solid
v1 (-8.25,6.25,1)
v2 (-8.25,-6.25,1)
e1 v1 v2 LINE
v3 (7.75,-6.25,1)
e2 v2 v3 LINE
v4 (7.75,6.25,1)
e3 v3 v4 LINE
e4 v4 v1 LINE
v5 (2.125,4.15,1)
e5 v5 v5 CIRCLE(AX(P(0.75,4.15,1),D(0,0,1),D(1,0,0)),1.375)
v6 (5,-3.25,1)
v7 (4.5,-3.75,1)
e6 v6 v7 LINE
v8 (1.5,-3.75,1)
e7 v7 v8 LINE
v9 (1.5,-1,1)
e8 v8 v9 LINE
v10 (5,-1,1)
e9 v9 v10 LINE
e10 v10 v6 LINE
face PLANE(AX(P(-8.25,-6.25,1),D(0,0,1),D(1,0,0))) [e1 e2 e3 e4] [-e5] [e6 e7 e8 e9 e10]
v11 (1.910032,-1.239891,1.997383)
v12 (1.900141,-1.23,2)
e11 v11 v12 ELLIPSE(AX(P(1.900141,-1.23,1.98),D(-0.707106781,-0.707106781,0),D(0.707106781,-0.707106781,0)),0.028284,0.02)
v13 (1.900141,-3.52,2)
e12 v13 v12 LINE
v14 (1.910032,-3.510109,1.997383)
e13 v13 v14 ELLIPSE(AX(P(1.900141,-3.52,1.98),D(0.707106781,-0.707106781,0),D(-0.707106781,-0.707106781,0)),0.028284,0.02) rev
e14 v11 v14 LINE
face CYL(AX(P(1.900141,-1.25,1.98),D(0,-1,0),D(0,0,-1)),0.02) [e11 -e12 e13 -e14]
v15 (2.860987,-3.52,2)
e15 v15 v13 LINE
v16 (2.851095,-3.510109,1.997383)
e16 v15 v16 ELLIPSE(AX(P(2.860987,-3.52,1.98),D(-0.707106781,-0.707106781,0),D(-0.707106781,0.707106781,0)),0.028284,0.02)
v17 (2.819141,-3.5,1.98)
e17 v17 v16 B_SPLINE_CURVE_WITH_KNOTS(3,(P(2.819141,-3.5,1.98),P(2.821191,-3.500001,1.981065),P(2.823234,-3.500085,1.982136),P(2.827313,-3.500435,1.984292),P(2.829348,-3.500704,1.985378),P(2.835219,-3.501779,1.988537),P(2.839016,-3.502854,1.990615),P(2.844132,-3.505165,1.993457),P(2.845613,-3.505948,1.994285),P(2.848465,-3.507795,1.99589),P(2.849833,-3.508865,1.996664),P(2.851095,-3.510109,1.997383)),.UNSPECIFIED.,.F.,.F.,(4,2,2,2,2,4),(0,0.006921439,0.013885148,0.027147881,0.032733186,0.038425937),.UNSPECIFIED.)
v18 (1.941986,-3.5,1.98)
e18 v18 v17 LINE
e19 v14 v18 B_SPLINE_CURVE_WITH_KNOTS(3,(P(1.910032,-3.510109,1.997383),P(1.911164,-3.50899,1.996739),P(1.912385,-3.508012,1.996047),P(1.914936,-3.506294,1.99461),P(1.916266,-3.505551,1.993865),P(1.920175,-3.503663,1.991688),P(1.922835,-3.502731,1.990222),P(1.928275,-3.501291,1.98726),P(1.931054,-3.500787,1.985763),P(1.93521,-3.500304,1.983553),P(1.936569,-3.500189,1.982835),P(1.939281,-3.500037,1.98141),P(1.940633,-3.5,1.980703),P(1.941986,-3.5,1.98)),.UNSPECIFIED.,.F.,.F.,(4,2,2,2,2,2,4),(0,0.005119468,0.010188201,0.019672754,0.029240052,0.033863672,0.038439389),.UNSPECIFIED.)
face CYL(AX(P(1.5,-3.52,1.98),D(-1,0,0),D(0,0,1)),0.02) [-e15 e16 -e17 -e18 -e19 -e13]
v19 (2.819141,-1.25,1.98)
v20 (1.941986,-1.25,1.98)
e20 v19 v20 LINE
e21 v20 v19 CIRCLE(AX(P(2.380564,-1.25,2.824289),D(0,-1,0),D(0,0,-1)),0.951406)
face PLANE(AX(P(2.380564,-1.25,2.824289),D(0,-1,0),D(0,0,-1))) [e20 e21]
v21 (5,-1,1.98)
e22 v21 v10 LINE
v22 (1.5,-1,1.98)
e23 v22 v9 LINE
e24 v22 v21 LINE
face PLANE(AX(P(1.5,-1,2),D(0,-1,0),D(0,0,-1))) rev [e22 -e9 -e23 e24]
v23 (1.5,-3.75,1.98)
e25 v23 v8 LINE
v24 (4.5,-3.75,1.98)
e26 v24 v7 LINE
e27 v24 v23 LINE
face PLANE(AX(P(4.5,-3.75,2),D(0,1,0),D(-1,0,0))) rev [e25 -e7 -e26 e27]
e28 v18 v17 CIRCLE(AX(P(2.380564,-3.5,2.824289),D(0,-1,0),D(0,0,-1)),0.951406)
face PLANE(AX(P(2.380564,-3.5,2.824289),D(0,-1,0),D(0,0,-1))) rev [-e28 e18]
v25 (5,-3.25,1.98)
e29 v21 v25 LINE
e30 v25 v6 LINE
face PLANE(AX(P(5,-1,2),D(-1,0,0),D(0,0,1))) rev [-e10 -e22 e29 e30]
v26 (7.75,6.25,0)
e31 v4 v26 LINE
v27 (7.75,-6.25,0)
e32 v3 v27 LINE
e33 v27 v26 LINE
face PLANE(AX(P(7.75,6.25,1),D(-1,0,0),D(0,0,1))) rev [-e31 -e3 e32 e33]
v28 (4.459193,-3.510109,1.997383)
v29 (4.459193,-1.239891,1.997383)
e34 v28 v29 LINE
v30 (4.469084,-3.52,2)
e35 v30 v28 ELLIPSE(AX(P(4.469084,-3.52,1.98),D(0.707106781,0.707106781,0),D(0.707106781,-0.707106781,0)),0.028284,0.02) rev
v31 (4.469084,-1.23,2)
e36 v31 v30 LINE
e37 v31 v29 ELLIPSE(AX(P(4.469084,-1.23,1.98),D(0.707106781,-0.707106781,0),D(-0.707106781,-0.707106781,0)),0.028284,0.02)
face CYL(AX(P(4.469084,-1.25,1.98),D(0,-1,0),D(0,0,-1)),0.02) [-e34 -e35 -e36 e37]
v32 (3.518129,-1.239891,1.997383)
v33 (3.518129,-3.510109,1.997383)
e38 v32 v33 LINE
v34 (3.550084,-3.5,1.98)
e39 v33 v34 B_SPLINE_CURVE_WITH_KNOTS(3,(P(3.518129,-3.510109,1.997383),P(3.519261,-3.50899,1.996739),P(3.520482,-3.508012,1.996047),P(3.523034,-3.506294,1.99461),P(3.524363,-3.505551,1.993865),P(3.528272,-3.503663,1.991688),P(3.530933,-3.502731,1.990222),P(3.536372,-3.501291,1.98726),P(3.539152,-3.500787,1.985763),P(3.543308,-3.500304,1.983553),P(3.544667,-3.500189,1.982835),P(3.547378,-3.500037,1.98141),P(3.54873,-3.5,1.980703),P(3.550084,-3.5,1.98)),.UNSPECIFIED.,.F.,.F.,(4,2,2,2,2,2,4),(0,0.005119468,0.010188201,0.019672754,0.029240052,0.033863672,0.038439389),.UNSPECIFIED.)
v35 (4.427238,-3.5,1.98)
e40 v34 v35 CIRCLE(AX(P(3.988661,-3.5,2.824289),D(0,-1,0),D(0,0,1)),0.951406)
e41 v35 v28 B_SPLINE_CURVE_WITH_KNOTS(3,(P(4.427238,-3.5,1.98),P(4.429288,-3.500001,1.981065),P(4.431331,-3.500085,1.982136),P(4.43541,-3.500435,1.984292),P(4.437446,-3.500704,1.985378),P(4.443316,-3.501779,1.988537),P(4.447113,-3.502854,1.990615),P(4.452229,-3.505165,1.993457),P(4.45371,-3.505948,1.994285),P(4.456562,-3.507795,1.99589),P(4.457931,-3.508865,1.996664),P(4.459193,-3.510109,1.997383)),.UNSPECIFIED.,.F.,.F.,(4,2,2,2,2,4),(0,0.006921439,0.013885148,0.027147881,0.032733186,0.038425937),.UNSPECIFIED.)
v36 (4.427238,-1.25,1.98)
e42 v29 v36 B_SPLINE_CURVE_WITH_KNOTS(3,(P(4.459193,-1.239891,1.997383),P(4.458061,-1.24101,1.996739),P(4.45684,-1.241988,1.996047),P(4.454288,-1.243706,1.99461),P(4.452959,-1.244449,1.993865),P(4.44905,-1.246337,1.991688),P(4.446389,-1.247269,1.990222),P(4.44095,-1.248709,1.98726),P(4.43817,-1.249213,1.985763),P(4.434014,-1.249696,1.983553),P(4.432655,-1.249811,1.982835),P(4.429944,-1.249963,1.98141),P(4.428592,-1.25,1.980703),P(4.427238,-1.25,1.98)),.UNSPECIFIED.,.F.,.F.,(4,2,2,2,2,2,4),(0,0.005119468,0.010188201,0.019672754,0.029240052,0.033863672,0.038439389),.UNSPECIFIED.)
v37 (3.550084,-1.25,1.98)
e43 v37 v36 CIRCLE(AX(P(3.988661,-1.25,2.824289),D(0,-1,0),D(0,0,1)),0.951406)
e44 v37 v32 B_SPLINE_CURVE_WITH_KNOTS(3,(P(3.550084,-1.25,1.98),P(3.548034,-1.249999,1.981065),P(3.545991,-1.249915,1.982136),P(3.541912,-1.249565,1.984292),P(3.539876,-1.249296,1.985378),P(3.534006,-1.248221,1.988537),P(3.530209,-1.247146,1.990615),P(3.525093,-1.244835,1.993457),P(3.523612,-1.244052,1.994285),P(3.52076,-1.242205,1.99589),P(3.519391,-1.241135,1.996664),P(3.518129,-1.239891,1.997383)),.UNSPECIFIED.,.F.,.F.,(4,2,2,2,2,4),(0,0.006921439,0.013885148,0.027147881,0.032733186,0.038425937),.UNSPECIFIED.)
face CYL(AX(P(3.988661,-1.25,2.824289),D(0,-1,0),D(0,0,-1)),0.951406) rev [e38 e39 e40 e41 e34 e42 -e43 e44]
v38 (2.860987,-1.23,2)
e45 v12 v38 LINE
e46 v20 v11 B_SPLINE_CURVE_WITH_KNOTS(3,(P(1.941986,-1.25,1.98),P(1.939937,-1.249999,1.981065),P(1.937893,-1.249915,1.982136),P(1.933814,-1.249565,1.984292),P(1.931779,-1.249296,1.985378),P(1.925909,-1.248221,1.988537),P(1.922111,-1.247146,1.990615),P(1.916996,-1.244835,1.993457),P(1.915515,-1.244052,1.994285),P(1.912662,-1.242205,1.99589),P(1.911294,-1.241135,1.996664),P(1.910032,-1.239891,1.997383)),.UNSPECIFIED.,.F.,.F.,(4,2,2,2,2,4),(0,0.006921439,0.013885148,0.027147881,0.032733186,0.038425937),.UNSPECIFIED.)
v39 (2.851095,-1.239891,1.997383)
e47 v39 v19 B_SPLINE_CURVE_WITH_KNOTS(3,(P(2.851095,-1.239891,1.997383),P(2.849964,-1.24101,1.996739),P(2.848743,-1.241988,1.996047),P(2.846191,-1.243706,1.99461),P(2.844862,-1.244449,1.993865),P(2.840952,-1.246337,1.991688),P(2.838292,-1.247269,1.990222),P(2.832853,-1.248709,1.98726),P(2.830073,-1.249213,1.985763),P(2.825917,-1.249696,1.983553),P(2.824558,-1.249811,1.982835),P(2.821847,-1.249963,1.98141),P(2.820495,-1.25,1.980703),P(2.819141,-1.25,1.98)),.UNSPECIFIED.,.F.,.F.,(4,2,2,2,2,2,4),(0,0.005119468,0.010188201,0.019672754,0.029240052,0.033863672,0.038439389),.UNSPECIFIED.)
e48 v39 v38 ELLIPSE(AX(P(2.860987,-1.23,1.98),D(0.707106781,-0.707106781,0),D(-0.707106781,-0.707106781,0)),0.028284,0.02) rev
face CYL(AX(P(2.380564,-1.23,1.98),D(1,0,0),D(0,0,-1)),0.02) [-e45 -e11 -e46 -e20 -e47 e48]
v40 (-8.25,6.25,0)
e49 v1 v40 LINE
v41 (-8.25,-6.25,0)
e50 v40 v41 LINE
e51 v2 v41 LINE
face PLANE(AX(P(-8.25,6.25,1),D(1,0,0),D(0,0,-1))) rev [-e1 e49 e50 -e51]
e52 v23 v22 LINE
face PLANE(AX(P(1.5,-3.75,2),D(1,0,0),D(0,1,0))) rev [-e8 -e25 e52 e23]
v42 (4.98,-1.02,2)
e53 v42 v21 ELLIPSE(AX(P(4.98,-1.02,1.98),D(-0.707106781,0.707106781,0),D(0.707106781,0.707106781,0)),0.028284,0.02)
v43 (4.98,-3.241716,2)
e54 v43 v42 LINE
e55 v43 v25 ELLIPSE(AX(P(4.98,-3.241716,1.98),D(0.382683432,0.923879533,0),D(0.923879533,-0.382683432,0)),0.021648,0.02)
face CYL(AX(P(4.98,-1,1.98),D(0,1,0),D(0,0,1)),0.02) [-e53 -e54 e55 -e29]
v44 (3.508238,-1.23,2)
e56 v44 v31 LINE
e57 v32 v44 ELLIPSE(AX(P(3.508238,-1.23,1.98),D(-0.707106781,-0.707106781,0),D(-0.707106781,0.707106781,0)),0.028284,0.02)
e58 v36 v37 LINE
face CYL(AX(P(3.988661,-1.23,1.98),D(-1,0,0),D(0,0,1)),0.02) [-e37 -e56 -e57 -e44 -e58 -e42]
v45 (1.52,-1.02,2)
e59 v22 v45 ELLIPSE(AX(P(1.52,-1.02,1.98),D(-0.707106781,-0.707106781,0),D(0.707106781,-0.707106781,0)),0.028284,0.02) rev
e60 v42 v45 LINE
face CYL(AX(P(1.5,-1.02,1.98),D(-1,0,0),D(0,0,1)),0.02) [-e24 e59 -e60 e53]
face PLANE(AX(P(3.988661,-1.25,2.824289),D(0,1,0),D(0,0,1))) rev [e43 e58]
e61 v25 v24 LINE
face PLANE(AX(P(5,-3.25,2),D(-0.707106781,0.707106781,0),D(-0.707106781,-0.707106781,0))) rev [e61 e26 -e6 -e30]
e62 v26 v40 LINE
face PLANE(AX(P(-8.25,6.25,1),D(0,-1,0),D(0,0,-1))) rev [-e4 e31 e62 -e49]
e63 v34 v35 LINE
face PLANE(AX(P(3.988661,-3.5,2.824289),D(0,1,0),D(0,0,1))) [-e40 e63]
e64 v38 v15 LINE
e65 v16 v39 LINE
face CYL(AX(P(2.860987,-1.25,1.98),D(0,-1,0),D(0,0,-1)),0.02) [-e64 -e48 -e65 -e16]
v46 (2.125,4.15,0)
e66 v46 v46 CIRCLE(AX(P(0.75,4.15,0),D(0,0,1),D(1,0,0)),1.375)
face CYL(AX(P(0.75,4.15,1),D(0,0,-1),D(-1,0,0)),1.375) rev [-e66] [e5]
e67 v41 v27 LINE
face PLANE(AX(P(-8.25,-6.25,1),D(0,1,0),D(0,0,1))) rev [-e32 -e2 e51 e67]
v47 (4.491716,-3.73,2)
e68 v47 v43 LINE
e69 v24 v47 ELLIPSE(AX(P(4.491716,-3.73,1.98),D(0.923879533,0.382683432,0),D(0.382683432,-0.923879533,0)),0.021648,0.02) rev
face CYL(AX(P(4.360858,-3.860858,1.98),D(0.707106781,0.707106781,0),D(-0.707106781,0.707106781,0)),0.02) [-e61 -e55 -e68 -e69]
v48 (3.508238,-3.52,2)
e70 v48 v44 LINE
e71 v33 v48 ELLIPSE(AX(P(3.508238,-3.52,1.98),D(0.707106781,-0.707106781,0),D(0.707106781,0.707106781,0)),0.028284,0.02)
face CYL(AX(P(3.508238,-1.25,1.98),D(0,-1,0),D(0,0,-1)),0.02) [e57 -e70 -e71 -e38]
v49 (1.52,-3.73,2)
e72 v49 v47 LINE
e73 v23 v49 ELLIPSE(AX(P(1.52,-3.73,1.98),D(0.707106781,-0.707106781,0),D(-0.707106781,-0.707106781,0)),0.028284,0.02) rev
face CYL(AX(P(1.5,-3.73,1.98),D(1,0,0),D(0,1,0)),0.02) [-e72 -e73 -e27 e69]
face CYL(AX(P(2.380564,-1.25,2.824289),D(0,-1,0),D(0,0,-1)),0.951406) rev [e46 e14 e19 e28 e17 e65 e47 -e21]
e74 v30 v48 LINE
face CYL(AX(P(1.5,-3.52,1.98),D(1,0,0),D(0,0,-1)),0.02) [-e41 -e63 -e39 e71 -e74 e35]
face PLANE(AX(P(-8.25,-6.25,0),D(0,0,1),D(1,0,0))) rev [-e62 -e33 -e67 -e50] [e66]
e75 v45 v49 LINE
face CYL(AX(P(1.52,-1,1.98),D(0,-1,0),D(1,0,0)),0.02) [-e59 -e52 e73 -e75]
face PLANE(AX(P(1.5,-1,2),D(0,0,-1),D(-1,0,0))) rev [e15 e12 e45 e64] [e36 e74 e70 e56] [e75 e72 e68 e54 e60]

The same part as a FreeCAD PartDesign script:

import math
import FreeCAD as App
import Part
import Sketcher

V = App.Vector
Q = App.Units.Quantity


def edges_at(feature, points):
    """Names of the edges that pass closest to the given points."""
    edges = feature.Shape.Edges
    near = lambda p: min(range(len(edges)), key=lambda i: edges[i].distToShape(Part.Vertex(*p))[0])
    return sorted({f"Edge{near(p) + 1}" for p in points})

doc = App.newDocument("Part")
body = doc.addObject("PartDesign::Body", "Body")

# Sketch on XY plane
sketch1 = body.newObject("Sketcher::SketchObject", "Sketch")
sketch1.AttachmentSupport = (doc.getObject("XY_Plane"), [""])
sketch1.MapMode = "FlatFace"
sketch1.addGeometry(Part.LineSegment(V(-8.25, 6.25, 0), V(-8.25, -6.25, 0)), False)
sketch1.addGeometry(Part.LineSegment(V(-8.25, -6.25, 0), V(7.75, -6.25, 0)), False)
sketch1.addGeometry(Part.LineSegment(V(7.75, -6.25, 0), V(7.75, 6.25, 0)), False)
sketch1.addGeometry(Part.LineSegment(V(7.75, 6.25, 0), V(-8.25, 6.25, 0)), False)
sketch1.addGeometry(Part.Circle(V(0.75, 4.15, 0), V(0, 0, 1), 1.375), False)
sketch1.addConstraint(Sketcher.Constraint("Coincident", 0, 2, 1, 1))
sketch1.addConstraint(Sketcher.Constraint("Coincident", 1, 2, 2, 1))
sketch1.addConstraint(Sketcher.Constraint("Coincident", 2, 2, 3, 1))
sketch1.addConstraint(Sketcher.Constraint("Coincident", 3, 2, 0, 1))
sketch1.addConstraint(Sketcher.Constraint("Vertical", 0))
sketch1.addConstraint(Sketcher.Constraint("Horizontal", 1))
sketch1.addConstraint(Sketcher.Constraint("Vertical", 2))
sketch1.addConstraint(Sketcher.Constraint("Horizontal", 3))
sketch1.addConstraint(Sketcher.Constraint("Diameter", 4, Q("2.75 mm")))
sketch1.addConstraint(Sketcher.Constraint("DistanceX", 1, 1, 1, 2, Q("16 mm")))
sketch1.addConstraint(Sketcher.Constraint("DistanceY", 0, 2, 0, 1, Q("12.5 mm")))
sketch1.addConstraint(Sketcher.Constraint("DistanceX", 0, 2, 4, 3, Q("9 mm")))
sketch1.addConstraint(Sketcher.Constraint("DistanceY", 0, 2, 4, 3, Q("10.4 mm")))
sketch1.addConstraint(Sketcher.Constraint("DistanceX", -1, 1, 4, 3, Q("0.75 mm")))
sketch1.addConstraint(Sketcher.Constraint("DistanceY", -1, 1, 4, 3, Q("4.15 mm")))
pad1 = body.newObject("PartDesign::Pad", "Pad")
pad1.Profile = sketch1
pad1.Length = 1

# Sketch on XY plane
sketch2 = body.newObject("Sketcher::SketchObject", "Sketch001")
sketch2.AttachmentSupport = (doc.getObject("XY_Plane"), [""])
sketch2.MapMode = "FlatFace"
sketch2.addGeometry(Part.LineSegment(V(5, -1, 0), V(1.5, -1, 0)), False)
sketch2.addGeometry(Part.LineSegment(V(1.5, -1, 0), V(1.5, -3.75, 0)), False)
sketch2.addGeometry(Part.LineSegment(V(1.5, -3.75, 0), V(4.5, -3.75, 0)), False)
sketch2.addGeometry(Part.LineSegment(V(4.5, -3.75, 0), V(5, -3.25, 0)), False)
sketch2.addGeometry(Part.LineSegment(V(5, -3.25, 0), V(5, -1, 0)), False)
sketch2.addConstraint(Sketcher.Constraint("Coincident", 0, 2, 1, 1))
sketch2.addConstraint(Sketcher.Constraint("Coincident", 1, 2, 2, 1))
sketch2.addConstraint(Sketcher.Constraint("Coincident", 2, 2, 3, 1))
sketch2.addConstraint(Sketcher.Constraint("Coincident", 3, 2, 4, 1))
sketch2.addConstraint(Sketcher.Constraint("Coincident", 4, 2, 0, 1))
sketch2.addConstraint(Sketcher.Constraint("Horizontal", 0))
sketch2.addConstraint(Sketcher.Constraint("Vertical", 1))
sketch2.addConstraint(Sketcher.Constraint("Horizontal", 2))
sketch2.addConstraint(Sketcher.Constraint("Vertical", 4))
sketch2.addConstraint(Sketcher.Constraint("DistanceX", 2, 1, 2, 2, Q("3 mm")))
sketch2.addConstraint(Sketcher.Constraint("Angle", 3, Q("45 deg")))
sketch2.addConstraint(Sketcher.Constraint("DistanceX", 0, 2, 0, 1, Q("3.5 mm")))
sketch2.addConstraint(Sketcher.Constraint("DistanceY", 0, 2, -1, 1, Q("1 mm")))
sketch2.addConstraint(Sketcher.Constraint("DistanceX", -1, 1, 3, 2, Q("5 mm")))
sketch2.addConstraint(Sketcher.Constraint("DistanceY", 1, 2, 1, 1, Q("2.75 mm")))
pad2 = body.newObject("PartDesign::Pad", "Pad001")
pad2.Profile = sketch2
pad2.Length = 2

# Sketch on XZ plane
sketch3 = body.newObject("Sketcher::SketchObject", "Sketch002")
sketch3.AttachmentSupport = (doc.getObject("XZ_Plane"), [""])
sketch3.MapMode = "FlatFace"
sketch3.AttachmentOffset = App.Placement(V(0, 0, 3.5), App.Rotation())
sketch3.addGeometry(Part.LineSegment(V(2.855665, 2, 0), V(1.905462, 2, 0)), False)
sketch3.addGeometry(Part.ArcOfCircle(Part.Circle(V(2.380564, 2.824289, 0), V(0, 0, 1), 0.951406), math.radians(-119.958181), math.radians(-60.041819)), False)
sketch3.addGeometry(Part.LineSegment(V(4.463763, 2, 0), V(3.513559, 2, 0)), False)
sketch3.addGeometry(Part.ArcOfCircle(Part.Circle(V(3.988661, 2.824289, 0), V(0, 0, 1), 0.951406), math.radians(-119.958181), math.radians(-60.041819)), False)
sketch3.addConstraint(Sketcher.Constraint("Coincident", 0, 1, 1, 2))
sketch3.addConstraint(Sketcher.Constraint("Coincident", 1, 1, 0, 2))
sketch3.addConstraint(Sketcher.Constraint("Coincident", 2, 1, 3, 2))
sketch3.addConstraint(Sketcher.Constraint("Coincident", 3, 1, 2, 2))
sketch3.addConstraint(Sketcher.Constraint("Horizontal", 0))
sketch3.addConstraint(Sketcher.Constraint("Horizontal", 2))
sketch3.addConstraint(Sketcher.Constraint("Equal", 1, 3))
sketch3.addConstraint(Sketcher.Constraint("Horizontal", 1, 3, 3, 3))
sketch3.addConstraint(Sketcher.Constraint("Horizontal", 1, 1, 2, 1))
sketch3.addConstraint(Sketcher.Constraint("DistanceY", -1, 1, 0, 1, Q("2 mm")))
sketch3.addConstraint(Sketcher.Constraint("Radius", 1, Q("0.951406 mm")))
sketch3.addConstraint(Sketcher.Constraint("DistanceX", 1, 3, 0, 1, Q("0.475102 mm")))
sketch3.addConstraint(Sketcher.Constraint("DistanceX", 1, 1, 3, 3, Q("2.083199 mm")))
sketch3.addConstraint(Sketcher.Constraint("DistanceX", -1, 1, 3, 3, Q("3.988661 mm")))
pocket1 = body.newObject("PartDesign::Pocket", "Pocket")
pocket1.Profile = sketch3
pocket1.Length = 2.25
doc.recompute()

fillet = body.newObject("PartDesign::Fillet", "Fillet")
fillet.Base = (pocket1, edges_at(pocket1, [
    (3.25, -1, 2),
    (5, -2.125, 2),
    (4.75, -3.5, 2),
    (3, -3.75, 2),
    (1.5, -2.375, 2),
    (3.989, -3.5, 2),
    (3.514, -2.375, 2),
    (3.989, -1.25, 2),
    (4.464, -2.375, 2),
    (1.905, -2.375, 2),
    (2.381, -1.25, 2),
    (2.856, -2.375, 2),
    (2.381, -3.5, 2),
]))
fillet.Radius = 0.02

doc.recompute()
